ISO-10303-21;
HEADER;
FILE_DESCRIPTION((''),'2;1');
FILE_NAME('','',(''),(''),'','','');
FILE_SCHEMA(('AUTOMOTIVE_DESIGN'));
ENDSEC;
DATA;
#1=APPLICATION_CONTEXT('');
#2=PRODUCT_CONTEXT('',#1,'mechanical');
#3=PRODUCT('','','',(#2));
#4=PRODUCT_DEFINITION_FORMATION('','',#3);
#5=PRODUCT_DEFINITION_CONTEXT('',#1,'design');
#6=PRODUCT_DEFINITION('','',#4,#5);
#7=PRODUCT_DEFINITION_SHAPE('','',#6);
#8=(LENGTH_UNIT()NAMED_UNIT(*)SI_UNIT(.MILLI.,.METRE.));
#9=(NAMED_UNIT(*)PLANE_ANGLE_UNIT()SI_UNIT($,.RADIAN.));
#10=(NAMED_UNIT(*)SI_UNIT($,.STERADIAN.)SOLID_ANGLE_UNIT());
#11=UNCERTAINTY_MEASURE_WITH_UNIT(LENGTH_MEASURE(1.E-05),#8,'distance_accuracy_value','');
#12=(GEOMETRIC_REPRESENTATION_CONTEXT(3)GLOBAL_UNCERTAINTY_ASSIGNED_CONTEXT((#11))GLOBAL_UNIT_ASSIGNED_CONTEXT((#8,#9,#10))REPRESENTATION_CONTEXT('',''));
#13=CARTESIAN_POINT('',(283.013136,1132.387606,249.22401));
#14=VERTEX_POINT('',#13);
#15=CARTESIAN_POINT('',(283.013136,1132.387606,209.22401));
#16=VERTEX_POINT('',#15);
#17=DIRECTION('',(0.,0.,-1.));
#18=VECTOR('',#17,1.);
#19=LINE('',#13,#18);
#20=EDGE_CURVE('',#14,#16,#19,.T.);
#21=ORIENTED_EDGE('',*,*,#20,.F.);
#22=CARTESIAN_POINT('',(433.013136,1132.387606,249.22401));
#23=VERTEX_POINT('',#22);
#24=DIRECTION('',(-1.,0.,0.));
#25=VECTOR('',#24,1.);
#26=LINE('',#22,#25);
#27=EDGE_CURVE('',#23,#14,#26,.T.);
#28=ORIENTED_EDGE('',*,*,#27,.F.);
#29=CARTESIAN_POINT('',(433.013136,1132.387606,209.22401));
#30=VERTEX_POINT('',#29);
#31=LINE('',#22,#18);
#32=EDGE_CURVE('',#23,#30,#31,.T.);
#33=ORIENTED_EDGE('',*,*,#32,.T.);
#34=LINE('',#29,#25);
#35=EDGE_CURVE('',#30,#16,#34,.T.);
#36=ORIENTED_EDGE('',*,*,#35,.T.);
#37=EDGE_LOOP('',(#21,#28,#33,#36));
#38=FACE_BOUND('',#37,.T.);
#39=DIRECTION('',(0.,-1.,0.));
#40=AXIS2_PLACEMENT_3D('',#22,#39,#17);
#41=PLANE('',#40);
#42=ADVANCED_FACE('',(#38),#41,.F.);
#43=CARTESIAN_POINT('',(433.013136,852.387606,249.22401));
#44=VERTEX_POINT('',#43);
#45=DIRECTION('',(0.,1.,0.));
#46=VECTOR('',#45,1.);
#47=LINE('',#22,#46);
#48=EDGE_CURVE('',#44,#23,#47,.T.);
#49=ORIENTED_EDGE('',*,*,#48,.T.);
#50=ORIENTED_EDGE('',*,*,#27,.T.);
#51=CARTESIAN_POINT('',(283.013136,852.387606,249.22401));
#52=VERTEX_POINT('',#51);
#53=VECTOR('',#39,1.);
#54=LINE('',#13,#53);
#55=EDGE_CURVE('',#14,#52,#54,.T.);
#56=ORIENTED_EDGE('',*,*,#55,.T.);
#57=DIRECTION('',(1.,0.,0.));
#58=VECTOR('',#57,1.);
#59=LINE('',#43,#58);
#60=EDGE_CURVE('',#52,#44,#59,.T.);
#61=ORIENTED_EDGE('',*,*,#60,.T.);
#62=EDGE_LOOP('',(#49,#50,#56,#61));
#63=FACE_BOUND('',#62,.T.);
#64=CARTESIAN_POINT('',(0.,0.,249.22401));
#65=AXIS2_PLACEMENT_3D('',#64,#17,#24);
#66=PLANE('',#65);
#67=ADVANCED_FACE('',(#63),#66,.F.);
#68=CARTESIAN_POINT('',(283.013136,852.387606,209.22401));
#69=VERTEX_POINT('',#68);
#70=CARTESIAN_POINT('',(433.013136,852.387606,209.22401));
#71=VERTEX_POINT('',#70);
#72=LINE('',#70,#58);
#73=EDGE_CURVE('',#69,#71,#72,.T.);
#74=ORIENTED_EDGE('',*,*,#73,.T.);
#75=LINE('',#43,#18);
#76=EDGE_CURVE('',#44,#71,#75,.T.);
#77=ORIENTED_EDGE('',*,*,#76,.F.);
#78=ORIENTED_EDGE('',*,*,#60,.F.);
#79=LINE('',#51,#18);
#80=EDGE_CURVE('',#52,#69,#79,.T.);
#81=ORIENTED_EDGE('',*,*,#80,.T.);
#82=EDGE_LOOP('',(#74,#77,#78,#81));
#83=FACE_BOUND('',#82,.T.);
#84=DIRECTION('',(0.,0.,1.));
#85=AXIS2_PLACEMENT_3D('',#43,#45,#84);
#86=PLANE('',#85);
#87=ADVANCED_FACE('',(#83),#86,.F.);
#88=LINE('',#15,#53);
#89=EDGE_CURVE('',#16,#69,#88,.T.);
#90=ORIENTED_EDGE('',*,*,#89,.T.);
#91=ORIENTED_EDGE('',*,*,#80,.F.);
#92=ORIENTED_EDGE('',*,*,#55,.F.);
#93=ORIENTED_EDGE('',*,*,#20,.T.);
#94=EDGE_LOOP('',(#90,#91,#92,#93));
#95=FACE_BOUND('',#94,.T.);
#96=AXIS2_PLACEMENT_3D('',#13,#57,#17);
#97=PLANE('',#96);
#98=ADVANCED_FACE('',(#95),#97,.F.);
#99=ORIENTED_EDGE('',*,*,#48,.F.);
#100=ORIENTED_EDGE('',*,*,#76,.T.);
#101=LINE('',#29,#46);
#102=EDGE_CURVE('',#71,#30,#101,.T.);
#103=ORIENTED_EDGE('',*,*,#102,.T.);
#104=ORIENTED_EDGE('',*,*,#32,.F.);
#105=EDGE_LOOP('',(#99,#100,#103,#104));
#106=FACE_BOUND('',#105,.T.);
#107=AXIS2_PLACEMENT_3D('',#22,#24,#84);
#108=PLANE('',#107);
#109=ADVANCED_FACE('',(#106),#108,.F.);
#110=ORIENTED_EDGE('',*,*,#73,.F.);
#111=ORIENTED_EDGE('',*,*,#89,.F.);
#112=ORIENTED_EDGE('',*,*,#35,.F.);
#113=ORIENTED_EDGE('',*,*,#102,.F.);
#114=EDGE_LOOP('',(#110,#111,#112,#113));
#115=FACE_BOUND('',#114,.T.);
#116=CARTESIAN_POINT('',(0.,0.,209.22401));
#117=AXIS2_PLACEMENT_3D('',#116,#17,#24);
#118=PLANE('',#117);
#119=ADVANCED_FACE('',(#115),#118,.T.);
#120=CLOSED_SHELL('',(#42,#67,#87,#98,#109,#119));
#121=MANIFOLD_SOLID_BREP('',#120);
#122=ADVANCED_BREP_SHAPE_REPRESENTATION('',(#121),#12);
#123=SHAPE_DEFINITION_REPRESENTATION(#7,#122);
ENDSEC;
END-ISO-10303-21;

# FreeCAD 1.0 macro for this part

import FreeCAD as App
import Part
import Sketcher
Q = App.Units.Quantity

doc = App.newDocument("Part")
body = doc.addObject("PartDesign::Body", "Body")

# Sketch on XY plane
sketch1 = doc.addObject("Sketcher::SketchObject", "Sketch")
body.addObject(sketch1)
sketch1.AttachmentSupport = (doc.XY_Plane, [""])
sketch1.MapMode = "FlatFace"
sketch1.AttachmentOffset = App.Placement(App.Vector(0, 0, 249.22401), App.Rotation())
sketch1.addGeometry([
    Part.LineSegment(App.Vector(283.013136, 1132.387606, 0), App.Vector(433.013136, 1132.387606, 0)),
    Part.LineSegment(App.Vector(433.013136, 1132.387606, 0), App.Vector(433.013136, 852.387606, 0)),
    Part.LineSegment(App.Vector(433.013136, 852.387606, 0), App.Vector(283.013136, 852.387606, 0)),
    Part.LineSegment(App.Vector(283.013136, 852.387606, 0), App.Vector(283.013136, 1132.387606, 0)),
], False)
sketch1.addConstraint([
    Sketcher.Constraint("Coincident", 0, 2, 1, 1),
    Sketcher.Constraint("Coincident", 1, 2, 2, 1),
    Sketcher.Constraint("Coincident", 2, 2, 3, 1),
    Sketcher.Constraint("Coincident", 3, 2, 0, 1),
    Sketcher.Constraint("Horizontal", 0),
    Sketcher.Constraint("Vertical", 1),
    Sketcher.Constraint("Horizontal", 2),
    Sketcher.Constraint("Vertical", 3),
    Sketcher.Constraint("DistanceX", 0, 1, 0, 2, Q("150 mm")),
    Sketcher.Constraint("DistanceY", 1, 2, 1, 1, Q("280 mm")),
    Sketcher.Constraint("DistanceX", -1, 1, 0, 2, Q("433.013136 mm")),
    Sketcher.Constraint("DistanceY", -1, 1, 0, 2, Q("1132.387606 mm")),
])
pad1 = doc.addObject("PartDesign::Pad", "Pad")
body.addObject(pad1)
pad1.Profile = sketch1
pad1.Length = 40
pad1.Reversed = True

doc.recompute()
